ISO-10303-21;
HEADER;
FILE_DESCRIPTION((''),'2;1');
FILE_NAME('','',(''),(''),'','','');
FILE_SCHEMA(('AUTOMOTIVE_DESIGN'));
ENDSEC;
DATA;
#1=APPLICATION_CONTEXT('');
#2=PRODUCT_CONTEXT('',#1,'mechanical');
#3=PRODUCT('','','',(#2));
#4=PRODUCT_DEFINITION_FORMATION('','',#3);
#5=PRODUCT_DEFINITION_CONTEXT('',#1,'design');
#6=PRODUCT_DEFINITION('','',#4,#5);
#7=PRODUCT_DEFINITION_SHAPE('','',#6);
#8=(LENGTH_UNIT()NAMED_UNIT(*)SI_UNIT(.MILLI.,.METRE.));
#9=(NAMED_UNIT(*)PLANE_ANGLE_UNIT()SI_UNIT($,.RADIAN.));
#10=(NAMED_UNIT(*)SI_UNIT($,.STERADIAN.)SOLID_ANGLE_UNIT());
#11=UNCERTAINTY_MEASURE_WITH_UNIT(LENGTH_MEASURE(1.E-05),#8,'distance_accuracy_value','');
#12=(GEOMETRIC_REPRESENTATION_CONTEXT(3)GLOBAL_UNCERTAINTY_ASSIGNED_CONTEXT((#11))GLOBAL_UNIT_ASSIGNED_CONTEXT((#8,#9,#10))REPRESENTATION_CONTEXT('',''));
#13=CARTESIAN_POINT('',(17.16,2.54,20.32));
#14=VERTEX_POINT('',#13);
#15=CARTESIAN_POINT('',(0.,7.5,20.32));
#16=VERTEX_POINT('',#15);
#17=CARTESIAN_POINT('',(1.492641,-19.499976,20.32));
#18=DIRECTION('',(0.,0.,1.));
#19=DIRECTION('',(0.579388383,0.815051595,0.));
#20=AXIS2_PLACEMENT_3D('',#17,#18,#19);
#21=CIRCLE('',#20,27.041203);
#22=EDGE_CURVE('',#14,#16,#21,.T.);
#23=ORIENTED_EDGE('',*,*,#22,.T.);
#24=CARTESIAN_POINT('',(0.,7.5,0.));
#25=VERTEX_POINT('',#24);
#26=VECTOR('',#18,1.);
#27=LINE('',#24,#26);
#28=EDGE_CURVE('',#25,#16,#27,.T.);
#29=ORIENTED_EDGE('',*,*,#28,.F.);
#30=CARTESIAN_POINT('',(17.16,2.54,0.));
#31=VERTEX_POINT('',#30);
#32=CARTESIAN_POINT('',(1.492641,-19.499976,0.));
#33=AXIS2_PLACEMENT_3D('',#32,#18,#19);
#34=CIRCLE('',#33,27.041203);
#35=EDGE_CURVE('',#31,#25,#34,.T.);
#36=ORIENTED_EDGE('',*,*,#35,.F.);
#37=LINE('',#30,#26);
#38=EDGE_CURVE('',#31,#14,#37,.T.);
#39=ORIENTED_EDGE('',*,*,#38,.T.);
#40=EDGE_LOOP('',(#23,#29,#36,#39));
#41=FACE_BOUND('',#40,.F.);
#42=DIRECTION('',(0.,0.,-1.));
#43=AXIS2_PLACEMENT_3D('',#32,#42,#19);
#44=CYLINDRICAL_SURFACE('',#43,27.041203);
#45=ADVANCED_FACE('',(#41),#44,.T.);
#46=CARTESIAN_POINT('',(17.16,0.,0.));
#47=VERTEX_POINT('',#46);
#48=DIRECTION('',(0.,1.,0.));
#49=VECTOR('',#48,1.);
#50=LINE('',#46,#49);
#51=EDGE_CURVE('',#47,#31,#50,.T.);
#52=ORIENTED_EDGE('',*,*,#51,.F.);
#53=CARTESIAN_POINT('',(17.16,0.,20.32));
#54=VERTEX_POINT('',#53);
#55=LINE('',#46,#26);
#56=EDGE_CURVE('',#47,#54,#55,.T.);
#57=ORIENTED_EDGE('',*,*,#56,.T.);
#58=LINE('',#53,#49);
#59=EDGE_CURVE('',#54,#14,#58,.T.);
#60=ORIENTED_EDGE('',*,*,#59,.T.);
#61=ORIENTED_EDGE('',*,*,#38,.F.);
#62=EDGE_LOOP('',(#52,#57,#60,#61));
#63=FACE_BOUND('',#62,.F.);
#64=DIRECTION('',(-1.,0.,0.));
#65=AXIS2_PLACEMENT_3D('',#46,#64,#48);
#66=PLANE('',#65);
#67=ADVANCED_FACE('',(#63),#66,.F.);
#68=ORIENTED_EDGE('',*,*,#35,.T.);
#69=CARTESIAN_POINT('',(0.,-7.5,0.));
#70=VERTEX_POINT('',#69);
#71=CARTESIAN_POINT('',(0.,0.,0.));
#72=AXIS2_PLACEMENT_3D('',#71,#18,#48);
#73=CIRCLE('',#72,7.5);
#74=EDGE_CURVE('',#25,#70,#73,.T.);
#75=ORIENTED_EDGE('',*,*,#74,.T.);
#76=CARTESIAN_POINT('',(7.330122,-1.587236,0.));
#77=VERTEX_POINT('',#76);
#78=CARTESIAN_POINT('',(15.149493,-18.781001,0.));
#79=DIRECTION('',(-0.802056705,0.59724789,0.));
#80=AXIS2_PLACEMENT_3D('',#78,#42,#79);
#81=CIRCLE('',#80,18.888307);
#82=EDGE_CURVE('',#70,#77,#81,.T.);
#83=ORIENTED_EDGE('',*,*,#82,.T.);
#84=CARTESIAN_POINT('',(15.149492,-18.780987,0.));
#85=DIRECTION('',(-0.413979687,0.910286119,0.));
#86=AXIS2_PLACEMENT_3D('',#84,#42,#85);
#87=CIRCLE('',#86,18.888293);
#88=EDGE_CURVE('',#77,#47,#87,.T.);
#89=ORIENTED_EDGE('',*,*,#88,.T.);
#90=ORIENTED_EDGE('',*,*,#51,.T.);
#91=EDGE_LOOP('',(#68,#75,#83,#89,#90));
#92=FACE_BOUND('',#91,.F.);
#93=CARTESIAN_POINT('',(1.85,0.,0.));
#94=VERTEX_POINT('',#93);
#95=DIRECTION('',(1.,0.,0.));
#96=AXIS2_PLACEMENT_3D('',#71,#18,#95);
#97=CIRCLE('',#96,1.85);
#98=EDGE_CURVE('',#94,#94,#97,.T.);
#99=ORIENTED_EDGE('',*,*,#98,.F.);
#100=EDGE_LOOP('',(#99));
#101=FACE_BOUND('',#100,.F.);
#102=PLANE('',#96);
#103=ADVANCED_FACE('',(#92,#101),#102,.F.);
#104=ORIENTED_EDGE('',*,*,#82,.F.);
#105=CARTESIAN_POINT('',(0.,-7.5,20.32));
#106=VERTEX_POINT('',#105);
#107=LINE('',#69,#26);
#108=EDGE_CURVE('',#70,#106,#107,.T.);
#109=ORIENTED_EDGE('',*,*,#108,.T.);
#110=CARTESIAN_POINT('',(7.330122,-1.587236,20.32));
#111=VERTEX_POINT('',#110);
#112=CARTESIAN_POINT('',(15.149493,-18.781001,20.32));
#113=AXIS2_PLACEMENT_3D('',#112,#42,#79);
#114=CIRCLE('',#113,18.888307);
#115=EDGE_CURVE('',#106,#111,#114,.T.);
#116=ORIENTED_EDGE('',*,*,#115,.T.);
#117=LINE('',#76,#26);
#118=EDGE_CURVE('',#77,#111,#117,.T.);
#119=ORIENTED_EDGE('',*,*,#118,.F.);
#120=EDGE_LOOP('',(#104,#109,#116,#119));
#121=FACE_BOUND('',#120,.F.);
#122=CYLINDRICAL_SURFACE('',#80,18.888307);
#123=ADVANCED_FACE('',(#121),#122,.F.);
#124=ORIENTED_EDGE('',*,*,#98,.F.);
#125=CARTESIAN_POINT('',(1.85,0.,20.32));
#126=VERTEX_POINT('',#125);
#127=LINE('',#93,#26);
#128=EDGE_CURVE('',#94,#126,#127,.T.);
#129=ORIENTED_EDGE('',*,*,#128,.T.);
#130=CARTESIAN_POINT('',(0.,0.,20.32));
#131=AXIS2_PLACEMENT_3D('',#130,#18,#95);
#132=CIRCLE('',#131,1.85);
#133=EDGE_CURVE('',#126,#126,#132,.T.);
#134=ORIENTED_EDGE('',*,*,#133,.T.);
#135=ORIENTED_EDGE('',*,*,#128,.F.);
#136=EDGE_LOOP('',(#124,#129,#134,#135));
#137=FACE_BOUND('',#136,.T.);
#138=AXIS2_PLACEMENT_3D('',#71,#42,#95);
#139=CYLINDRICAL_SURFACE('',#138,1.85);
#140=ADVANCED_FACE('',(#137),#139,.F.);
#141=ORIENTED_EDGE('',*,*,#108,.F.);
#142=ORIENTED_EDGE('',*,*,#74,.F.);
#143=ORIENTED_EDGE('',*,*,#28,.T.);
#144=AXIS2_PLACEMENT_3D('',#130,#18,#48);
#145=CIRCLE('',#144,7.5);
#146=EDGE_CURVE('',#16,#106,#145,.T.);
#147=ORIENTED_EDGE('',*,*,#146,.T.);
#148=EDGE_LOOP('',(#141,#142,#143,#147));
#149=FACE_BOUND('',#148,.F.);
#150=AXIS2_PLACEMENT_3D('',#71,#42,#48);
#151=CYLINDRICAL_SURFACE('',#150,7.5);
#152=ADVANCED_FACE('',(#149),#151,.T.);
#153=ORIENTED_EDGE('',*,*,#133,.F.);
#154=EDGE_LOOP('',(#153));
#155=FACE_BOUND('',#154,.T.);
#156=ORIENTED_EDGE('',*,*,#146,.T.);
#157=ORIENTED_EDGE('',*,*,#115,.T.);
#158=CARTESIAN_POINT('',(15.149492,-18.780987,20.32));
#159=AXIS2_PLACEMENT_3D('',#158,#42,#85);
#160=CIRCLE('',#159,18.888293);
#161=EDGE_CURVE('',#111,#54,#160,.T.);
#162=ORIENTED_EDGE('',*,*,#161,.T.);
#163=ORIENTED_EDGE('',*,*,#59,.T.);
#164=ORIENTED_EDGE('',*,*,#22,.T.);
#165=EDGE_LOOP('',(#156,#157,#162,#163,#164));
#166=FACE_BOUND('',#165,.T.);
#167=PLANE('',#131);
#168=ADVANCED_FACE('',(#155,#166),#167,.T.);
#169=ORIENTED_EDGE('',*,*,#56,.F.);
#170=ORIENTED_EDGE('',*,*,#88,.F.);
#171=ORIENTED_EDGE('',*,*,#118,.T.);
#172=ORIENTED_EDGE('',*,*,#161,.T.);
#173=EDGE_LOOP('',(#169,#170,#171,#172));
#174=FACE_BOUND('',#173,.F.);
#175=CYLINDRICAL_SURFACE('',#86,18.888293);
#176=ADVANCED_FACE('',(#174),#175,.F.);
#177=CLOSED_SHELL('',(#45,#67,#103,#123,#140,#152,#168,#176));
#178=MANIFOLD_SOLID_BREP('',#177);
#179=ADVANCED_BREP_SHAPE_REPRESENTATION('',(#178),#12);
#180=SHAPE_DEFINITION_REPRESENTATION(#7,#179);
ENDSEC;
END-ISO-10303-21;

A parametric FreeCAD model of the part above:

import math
import FreeCAD as App
import Part
import Sketcher
from FreeCAD import Vector

doc = App.newDocument("Part")
params = doc.addObject("Spreadsheet::Sheet", "Params")
for row, (alias, value) in enumerate([
    ("sketch1_diameter", "3.7 mm"),
    ("sketch1_radius", "7.5 mm"),
    ("sketch1_height", "2.54 mm"),
    ("pad1_length", "20.32 mm"),
], start=1):
    params.set(f"A{row}", alias)
    params.set(f"B{row}", "=" + value)
    params.setAlias(f"B{row}", alias)

body = doc.addObject("PartDesign::Body", "Body")

# Sketch on XY plane
sketch1 = body.newObject("Sketcher::SketchObject", "Sketch")
sketch1.AttachmentSupport = (doc.getObject("XY_Plane"), [""])
sketch1.MapMode = "FlatFace"
sketch1.addGeometry([
    Part.ArcOfCircle(Part.Circle(Vector(15.149493, -18.781001, 0), Vector(0, 0, 1), 18.888307), math.radians(114.455065), math.radians(143.326954)),  # 0
    Part.ArcOfCircle(Part.Circle(Vector(15.149492, -18.780987, 0), Vector(0, 0, 1), 18.888293), math.radians(83.889746), math.radians(114.455079)),  # 1
    Part.LineSegment(Vector(17.16, 0, 0), Vector(17.16, 2.54, 0)),  # 2
    Part.ArcOfCircle(Part.Circle(Vector(1.492641, -19.499976, 0), Vector(0, 0, 1), 27.041203), math.radians(54.592464), math.radians(93.164265)),  # 3
    Part.ArcOfCircle(Part.Circle(Vector(0, 0, 0), Vector(0, 0, 1), 7.5), math.radians(90), math.radians(270)),  # 4
    Part.Circle(Vector(0, 0, 0), Vector(0, 0, 1), 1.85),  # 5
], False)
sketch1.addConstraint([
    Sketcher.Constraint("Tangent", 0, 1, 1, 2),
    Sketcher.Constraint("Coincident", 1, 1, 2, 1),
    Sketcher.Constraint("Coincident", 2, 2, 3, 1),
    Sketcher.Constraint("Coincident", 3, 2, 4, 1),
    Sketcher.Constraint("Coincident", 4, 2, 0, 2),
    Sketcher.Constraint("Vertical", 2),
    Sketcher.Constraint("Coincident", 4, 3, -1, 1),
    Sketcher.Constraint("Coincident", 5, 3, -1, 1),
    Sketcher.Constraint("PointOnObject", 1, 1, -1),
    Sketcher.Constraint("PointOnObject", 3, 2, -2),
    Sketcher.Constraint("PointOnObject", 4, 2, -2),
    Sketcher.Constraint("Vertical", 0, 3, 1, 3),
    Sketcher.Constraint("Diameter", 5, 3.7),
    Sketcher.Constraint("Radius", 4, 7.5),
    Sketcher.Constraint("DistanceY", 2, 1, 2, 2, 2.54),
    Sketcher.Constraint("DistanceX", -1, 1, 1, 1, 17.16),
    Sketcher.Constraint("DistanceY", 0, 3, -1, 1, 18.781001),
    Sketcher.Constraint("Radius", 3, 27.041203),
    Sketcher.Constraint("DistanceX", 3, 3, 0, 1, 5.837481),
])
sketch1.setExpression("Constraints[12]", "Params.sketch1_diameter")
sketch1.setExpression("Constraints[13]", "Params.sketch1_radius")
sketch1.setExpression("Constraints[14]", "Params.sketch1_height")
pad1 = body.newObject("PartDesign::Pad", "Pad")
pad1.Profile = sketch1
pad1.setExpression("Length", "Params.pad1_length")

doc.recompute()
